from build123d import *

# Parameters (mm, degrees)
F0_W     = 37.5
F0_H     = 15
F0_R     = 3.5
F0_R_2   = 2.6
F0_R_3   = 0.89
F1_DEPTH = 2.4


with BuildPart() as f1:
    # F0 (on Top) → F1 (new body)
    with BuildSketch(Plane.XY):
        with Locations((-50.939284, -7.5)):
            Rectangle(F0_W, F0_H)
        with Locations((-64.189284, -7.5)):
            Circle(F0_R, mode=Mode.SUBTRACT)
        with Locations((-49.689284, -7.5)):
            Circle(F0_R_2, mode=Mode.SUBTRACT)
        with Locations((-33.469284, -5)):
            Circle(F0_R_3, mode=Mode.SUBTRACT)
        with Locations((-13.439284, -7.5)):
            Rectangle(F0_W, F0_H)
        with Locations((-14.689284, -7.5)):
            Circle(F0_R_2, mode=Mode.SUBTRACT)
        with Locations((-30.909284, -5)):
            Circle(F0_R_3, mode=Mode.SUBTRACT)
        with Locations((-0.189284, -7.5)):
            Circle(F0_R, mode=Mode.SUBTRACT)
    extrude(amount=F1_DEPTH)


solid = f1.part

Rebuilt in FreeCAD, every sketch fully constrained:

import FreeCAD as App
import Part
import Sketcher

V = App.Vector
Q = App.Units.Quantity

doc = App.newDocument("Part")
body = doc.addObject("PartDesign::Body", "Body")

# Sketch on XY plane
sketch1 = body.newObject("Sketcher::SketchObject", "Sketch")
sketch1.AttachmentSupport = (doc.getObject("XY_Plane"), [""])
sketch1.MapMode = "FlatFace"
sketch1.addGeometry([
    Part.LineSegment(V(-69.689284, 0, 0), V(-69.689284, -15, 0)),  # 0
    Part.LineSegment(V(-69.689284, -15, 0), V(5.310716, -15, 0)),  # 1
    Part.LineSegment(V(5.310716, -15, 0), V(5.310716, 0, 0)),  # 2
    Part.LineSegment(V(5.310716, 0, 0), V(-69.689284, 0, 0)),  # 3
    Part.Circle(V(-64.189284, -7.5, 0), V(0, 0, 1), 3.5),  # 4
    Part.Circle(V(-49.689284, -7.5, 0), V(0, 0, 1), 2.6),  # 5
    Part.Circle(V(-33.469284, -5, 0), V(0, 0, 1), 0.89),  # 6
    Part.Circle(V(-14.689284, -7.5, 0), V(0, 0, 1), 2.6),  # 7
    Part.Circle(V(-0.189284, -7.5, 0), V(0, 0, 1), 3.5),  # 8
    Part.Circle(V(-30.909284, -5, 0), V(0, 0, 1), 0.89),  # 9
], False)
sketch1.addConstraint([
    Sketcher.Constraint("Coincident", 0, 2, 1, 1),
    Sketcher.Constraint("Coincident", 1, 2, 2, 1),
    Sketcher.Constraint("Coincident", 2, 2, 3, 1),
    Sketcher.Constraint("Coincident", 3, 2, 0, 1),
    Sketcher.Constraint("Vertical", 0),
    Sketcher.Constraint("Horizontal", 1),
    Sketcher.Constraint("Vertical", 2),
    Sketcher.Constraint("Horizontal", 3),
    Sketcher.Constraint("Equal", 5, 7),
    Sketcher.Constraint("Equal", 4, 8),
    Sketcher.Constraint("Equal", 6, 9),
    Sketcher.Constraint("PointOnObject", 2, 2, -1),
    Sketcher.Constraint("Horizontal", 4, 3, 5, 3),
    Sketcher.Constraint("Horizontal", 5, 3, 7, 3),
    Sketcher.Constraint("Horizontal", 7, 3, 8, 3),
    Sketcher.Constraint("Horizontal", 6, 3, 9, 3),
    Sketcher.Constraint("Diameter", 4, Q("7 mm")),
    Sketcher.Constraint("Diameter", 5, Q("5.2 mm")),
    Sketcher.Constraint("Diameter", 6, Q("1.78 mm")),
    Sketcher.Constraint("DistanceX", 1, 1, 1, 2, Q("75 mm")),
    Sketcher.Constraint("DistanceY", 0, 2, 0, 1, Q("15 mm")),
    Sketcher.Constraint("DistanceY", 6, 3, -1, 1, Q("5 mm")),
    Sketcher.Constraint("DistanceX", 5, 3, 7, 3, Q("35 mm")),
    Sketcher.Constraint("DistanceX", 4, 3, 8, 3, Q("64 mm")),
    Sketcher.Constraint("DistanceX", 0, 2, 5, 3, Q("20 mm")),
    Sketcher.Constraint("DistanceY", 4, 3, -1, 1, Q("7.5 mm")),
    Sketcher.Constraint("DistanceX", 4, 3, 5, 3, Q("14.5 mm")),
    Sketcher.Constraint("DistanceX", 5, 3, 6, 3, Q("16.22 mm")),
    Sketcher.Constraint("DistanceX", 6, 3, 9, 3, Q("2.56 mm")),
    Sketcher.Constraint("DistanceX", 4, 3, -1, 1, Q("64.189284 mm")),
])
pad1 = body.newObject("PartDesign::Pad", "Pad")
pad1.Profile = sketch1
pad1.Length = 2.4

doc.recompute()
